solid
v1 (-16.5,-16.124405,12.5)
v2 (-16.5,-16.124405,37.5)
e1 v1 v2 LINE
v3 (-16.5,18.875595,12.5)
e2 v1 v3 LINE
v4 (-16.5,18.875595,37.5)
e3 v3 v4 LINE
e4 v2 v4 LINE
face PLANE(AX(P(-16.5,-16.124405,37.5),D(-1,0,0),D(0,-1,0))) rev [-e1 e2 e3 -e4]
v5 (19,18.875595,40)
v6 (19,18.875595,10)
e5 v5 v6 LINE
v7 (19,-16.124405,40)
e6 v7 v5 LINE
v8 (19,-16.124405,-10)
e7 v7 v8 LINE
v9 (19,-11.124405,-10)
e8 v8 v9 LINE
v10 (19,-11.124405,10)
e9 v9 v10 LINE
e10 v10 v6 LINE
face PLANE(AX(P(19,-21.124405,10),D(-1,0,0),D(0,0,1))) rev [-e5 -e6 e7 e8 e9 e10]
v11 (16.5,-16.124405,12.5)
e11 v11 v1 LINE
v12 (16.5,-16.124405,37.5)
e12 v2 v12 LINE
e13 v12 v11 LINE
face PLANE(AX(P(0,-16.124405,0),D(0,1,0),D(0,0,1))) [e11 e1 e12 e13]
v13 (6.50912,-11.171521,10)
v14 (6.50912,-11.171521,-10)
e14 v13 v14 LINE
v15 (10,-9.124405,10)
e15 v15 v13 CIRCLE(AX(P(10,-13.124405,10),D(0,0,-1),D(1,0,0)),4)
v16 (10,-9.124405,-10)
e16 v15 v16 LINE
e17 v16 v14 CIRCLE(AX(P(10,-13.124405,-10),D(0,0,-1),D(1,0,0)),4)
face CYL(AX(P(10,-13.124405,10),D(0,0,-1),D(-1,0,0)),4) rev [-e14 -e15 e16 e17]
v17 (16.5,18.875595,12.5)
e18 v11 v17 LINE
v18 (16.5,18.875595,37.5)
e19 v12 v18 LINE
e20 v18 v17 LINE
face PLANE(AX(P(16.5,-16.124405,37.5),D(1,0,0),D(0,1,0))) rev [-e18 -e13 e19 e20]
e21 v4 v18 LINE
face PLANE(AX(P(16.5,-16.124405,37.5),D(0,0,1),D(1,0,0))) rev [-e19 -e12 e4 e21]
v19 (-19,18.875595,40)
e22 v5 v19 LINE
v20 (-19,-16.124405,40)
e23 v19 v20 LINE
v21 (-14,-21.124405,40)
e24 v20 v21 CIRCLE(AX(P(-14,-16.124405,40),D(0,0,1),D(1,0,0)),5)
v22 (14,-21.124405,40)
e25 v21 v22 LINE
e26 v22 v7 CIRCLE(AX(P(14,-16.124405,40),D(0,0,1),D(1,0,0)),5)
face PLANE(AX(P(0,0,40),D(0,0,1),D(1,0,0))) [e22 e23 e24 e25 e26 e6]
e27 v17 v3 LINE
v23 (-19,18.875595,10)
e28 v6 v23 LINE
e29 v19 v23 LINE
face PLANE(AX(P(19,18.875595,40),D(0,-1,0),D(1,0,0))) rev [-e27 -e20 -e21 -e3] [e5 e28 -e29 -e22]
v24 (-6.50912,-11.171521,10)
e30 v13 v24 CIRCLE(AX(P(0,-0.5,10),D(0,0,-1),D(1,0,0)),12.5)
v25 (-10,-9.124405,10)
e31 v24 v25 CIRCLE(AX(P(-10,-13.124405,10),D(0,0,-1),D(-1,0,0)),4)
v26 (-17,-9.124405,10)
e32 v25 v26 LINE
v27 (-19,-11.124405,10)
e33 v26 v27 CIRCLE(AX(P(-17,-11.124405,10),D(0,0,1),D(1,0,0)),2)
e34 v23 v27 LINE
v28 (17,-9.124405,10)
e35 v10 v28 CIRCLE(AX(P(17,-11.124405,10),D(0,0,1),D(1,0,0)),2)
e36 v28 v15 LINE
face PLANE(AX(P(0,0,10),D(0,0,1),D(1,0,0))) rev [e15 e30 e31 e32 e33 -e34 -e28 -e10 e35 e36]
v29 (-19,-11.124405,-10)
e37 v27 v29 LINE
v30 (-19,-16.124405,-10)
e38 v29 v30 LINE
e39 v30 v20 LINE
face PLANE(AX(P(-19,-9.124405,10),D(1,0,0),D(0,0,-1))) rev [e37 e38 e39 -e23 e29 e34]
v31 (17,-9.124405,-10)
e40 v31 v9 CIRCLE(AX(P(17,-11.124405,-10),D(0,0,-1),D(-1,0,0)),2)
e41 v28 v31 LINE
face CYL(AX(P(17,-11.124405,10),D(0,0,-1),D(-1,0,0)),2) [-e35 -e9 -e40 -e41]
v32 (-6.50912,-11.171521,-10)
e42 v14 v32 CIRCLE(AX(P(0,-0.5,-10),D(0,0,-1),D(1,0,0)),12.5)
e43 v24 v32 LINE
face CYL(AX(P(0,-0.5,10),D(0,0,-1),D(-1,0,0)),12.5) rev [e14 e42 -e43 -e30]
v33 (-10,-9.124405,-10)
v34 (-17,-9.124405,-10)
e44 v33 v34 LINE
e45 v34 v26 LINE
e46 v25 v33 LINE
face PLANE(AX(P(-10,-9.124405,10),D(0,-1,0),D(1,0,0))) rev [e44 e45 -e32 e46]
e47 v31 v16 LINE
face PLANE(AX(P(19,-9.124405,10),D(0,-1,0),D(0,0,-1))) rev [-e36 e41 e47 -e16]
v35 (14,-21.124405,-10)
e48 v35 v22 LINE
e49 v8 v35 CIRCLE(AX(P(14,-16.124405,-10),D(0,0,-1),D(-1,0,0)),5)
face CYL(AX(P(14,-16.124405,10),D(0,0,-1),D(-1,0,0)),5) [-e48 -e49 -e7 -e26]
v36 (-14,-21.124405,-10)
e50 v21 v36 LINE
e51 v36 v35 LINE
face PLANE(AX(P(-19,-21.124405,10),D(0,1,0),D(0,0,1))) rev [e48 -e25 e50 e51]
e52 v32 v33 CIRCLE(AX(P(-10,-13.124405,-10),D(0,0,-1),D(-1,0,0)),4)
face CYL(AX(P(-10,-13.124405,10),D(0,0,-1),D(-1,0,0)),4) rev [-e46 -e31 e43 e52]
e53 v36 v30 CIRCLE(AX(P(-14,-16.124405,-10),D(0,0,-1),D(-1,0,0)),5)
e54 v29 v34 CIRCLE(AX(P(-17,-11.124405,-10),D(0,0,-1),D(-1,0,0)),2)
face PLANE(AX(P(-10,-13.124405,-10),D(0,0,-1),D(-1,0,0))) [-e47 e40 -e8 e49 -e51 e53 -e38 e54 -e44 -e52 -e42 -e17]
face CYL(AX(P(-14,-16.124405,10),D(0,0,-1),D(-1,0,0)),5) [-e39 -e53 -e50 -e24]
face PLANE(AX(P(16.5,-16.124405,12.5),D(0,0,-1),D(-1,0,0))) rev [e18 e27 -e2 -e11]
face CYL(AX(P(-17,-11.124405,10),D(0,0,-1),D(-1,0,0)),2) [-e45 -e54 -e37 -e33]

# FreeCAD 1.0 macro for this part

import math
import FreeCAD as App
import Part
import Sketcher


def edges_at(feature, points):
    """Names of the edges that pass closest to the given points."""
    edges = feature.Shape.Edges
    near = lambda p: min(range(len(edges)), key=lambda i: edges[i].distToShape(Part.Vertex(*p))[0])
    return sorted({f"Edge{near(p) + 1}" for p in points})

doc = App.newDocument("Part")
body = doc.addObject("PartDesign::Body", "Body")

# Sketch on XY plane
sketch1 = body.newObject("Sketcher::SketchObject", "Sketch")
sketch1.AttachmentSupport = (doc.getObject("XY_Plane"), [""])
sketch1.MapMode = "FlatFace"
sketch1.addGeometry([
    Part.LineSegment(App.Vector(-10, -9.1, 0), App.Vector(-19, -9.1, 0)),  # 0
    Part.LineSegment(App.Vector(-19, -9.1, 0), App.Vector(-19, -21.1, 0)),  # 1
    Part.LineSegment(App.Vector(-19, -21.1, 0), App.Vector(19, -21.1, 0)),  # 2
    Part.LineSegment(App.Vector(19, -21.1, 0), App.Vector(19, -9.1, 0)),  # 3
    Part.LineSegment(App.Vector(19, -9.1, 0), App.Vector(10, -9.1, 0)),  # 4
    Part.ArcOfCircle(Part.Circle(App.Vector(10, -13.1, 0), App.Vector(0, 0, 1), 4), math.radians(151), math.radians(450)),  # 5
    Part.ArcOfCircle(Part.Circle(App.Vector(0, -0.5, 0), App.Vector(0, 0, 1), 12.5), math.radians(-121), math.radians(-59)),  # 6
    Part.ArcOfCircle(Part.Circle(App.Vector(-10, -13.1, 0), App.Vector(0, 0, 1), 4), math.radians(90), math.radians(389)),  # 7
], False)
sketch1.addConstraint([
    Sketcher.Constraint("Coincident", 0, 2, 1, 1),
    Sketcher.Constraint("Coincident", 1, 2, 2, 1),
    Sketcher.Constraint("Coincident", 2, 2, 3, 1),
    Sketcher.Constraint("Coincident", 3, 2, 4, 1),
    Sketcher.Constraint("Tangent", 4, 2, 5, 2),
    Sketcher.Constraint("Coincident", 5, 1, 6, 2),
    Sketcher.Constraint("Coincident", 6, 1, 7, 2),
    Sketcher.Constraint("Tangent", 7, 1, 0, 1),
    Sketcher.Constraint("Horizontal", 0),
    Sketcher.Constraint("Vertical", 1),
    Sketcher.Constraint("Horizontal", 2),
    Sketcher.Constraint("Vertical", 3),
    Sketcher.Constraint("Horizontal", 4),
    Sketcher.Constraint("Equal", 5, 7),
    Sketcher.Constraint("Symmetric", 5, 3, 7, 3, -2),
    Sketcher.Constraint("PointOnObject", 6, 3, -2),
    Sketcher.Constraint("Equal", 0, 4),
    Sketcher.Constraint("Radius", 5, 4.0),
    Sketcher.Constraint("Radius", 6, 12.5),
    Sketcher.Constraint("DistanceX", 0, 2, 0, 1, 9.0),
    Sketcher.Constraint("DistanceX", 2, 1, 2, 2, 38.0),
    Sketcher.Constraint("DistanceY", 1, 2, 1, 1, 12.0),
    Sketcher.Constraint("DistanceY", 6, 3, -1, 1, 0.5),
    Sketcher.Constraint("DistanceX", -1, 1, 5, 1, 6.50912),
])
pad1 = body.newObject("PartDesign::Pad", "Pad")
pad1.Profile = sketch1
pad1.Length = 20
pad1.Midplane = True

# Sketch on XY plane
sketch2 = body.newObject("Sketcher::SketchObject", "Sketch001")
sketch2.AttachmentSupport = (doc.getObject("XY_Plane"), [""])
sketch2.MapMode = "FlatFace"
sketch2.AttachmentOffset = App.Placement(App.Vector(0, 0, 10), App.Rotation())
sketch2.addGeometry([
    Part.LineSegment(App.Vector(-19, 19, 0), App.Vector(-19, -21, 0)),
    Part.LineSegment(App.Vector(-19, -21, 0), App.Vector(19, -21, 0)),
    Part.LineSegment(App.Vector(19, -21, 0), App.Vector(19, 19, 0)),
    Part.LineSegment(App.Vector(19, 19, 0), App.Vector(-19, 19, 0)),
], False)
sketch2.addConstraint([
    Sketcher.Constraint("Coincident", 0, 2, 1, 1),
    Sketcher.Constraint("Coincident", 1, 2, 2, 1),
    Sketcher.Constraint("Coincident", 2, 2, 3, 1),
    Sketcher.Constraint("Coincident", 3, 2, 0, 1),
    Sketcher.Constraint("Vertical", 0),
    Sketcher.Constraint("Horizontal", 1),
    Sketcher.Constraint("Vertical", 2),
    Sketcher.Constraint("Horizontal", 3),
    Sketcher.Constraint("DistanceX", 1, 1, 1, 2, 38.0),
    Sketcher.Constraint("DistanceY", 0, 2, 0, 1, 40.0),
    Sketcher.Constraint("DistanceX", 0, 2, -1, 1, 19.0),
    Sketcher.Constraint("DistanceY", 0, 2, -1, 1, 21.124405),
])
pad2 = body.newObject("PartDesign::Pad", "Pad001")
pad2.Profile = sketch2
pad2.Length = 30
doc.recompute()

fillet = body.newObject("PartDesign::Fillet", "Fillet")
fillet.Base = (pad2, edges_at(pad2, [(19, -21.124, 15), (-19, -21.124, 15)]))
fillet.Radius = 5
doc.recompute()

fillet2 = body.newObject("PartDesign::Fillet", "Fillet001")
fillet2.Base = (fillet, edges_at(fillet, [(19, -9.124, 0), (-19, -9.124, 0)]))
fillet2.Radius = 2

# Sketch on XZ plane
sketch3 = body.newObject("Sketcher::SketchObject", "Sketch002")
sketch3.AttachmentSupport = (doc.getObject("XZ_Plane"), [""])
sketch3.MapMode = "FlatFace"
sketch3.AttachmentOffset = App.Placement(App.Vector(0, 0, -18.875595), App.Rotation())
sketch3.addGeometry([
    Part.LineSegment(App.Vector(-16, 12, 0), App.Vector(-16, 38, 0)),
    Part.LineSegment(App.Vector(-16, 38, 0), App.Vector(16, 38, 0)),
    Part.LineSegment(App.Vector(16, 38, 0), App.Vector(16, 12, 0)),
    Part.LineSegment(App.Vector(16, 12, 0), App.Vector(-16, 12, 0)),
], False)
sketch3.addConstraint([
    Sketcher.Constraint("Coincident", 0, 2, 1, 1),
    Sketcher.Constraint("Coincident", 1, 2, 2, 1),
    Sketcher.Constraint("Coincident", 2, 2, 3, 1),
    Sketcher.Constraint("Coincident", 3, 2, 0, 1),
    Sketcher.Constraint("Vertical", 0),
    Sketcher.Constraint("Horizontal", 1),
    Sketcher.Constraint("Vertical", 2),
    Sketcher.Constraint("Horizontal", 3),
    Sketcher.Constraint("DistanceX", 1, 1, 1, 2, 33.0),
    Sketcher.Constraint("DistanceY", 0, 1, 0, 2, 25.0),
    Sketcher.Constraint("DistanceX", 0, 2, -1, 1, 16.5),
    Sketcher.Constraint("DistanceY", -1, 1, 0, 2, 37.5),
])
pocket1 = body.newObject("PartDesign::Pocket", "Pocket")
pocket1.Profile = sketch3
pocket1.Length = 35
pocket1.Reversed = True

doc.recompute()
